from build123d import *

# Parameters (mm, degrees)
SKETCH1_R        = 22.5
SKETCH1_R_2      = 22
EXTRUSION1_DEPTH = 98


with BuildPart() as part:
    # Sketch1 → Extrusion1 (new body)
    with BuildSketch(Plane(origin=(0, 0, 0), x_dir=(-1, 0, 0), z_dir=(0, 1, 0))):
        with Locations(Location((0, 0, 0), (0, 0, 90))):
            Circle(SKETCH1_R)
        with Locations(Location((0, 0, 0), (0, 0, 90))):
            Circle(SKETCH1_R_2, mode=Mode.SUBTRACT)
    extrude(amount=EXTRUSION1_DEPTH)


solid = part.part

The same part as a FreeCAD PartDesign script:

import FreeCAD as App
import Part
import Sketcher

V = App.Vector
Q = App.Units.Quantity

doc = App.newDocument("Part")
body = doc.addObject("PartDesign::Body", "Body")

# Sketch on XZ plane
sketch1 = body.newObject("Sketcher::SketchObject", "Sketch")
sketch1.AttachmentSupport = (doc.getObject("XZ_Plane"), [""])
sketch1.MapMode = "FlatFace"
sketch1.addGeometry(Part.Circle(V(0, 0, 0), V(0, 0, 1), 22), False)
sketch1.addGeometry(Part.Circle(V(0, 0, 0), V(0, 0, 1), 22), False)
sketch1.addConstraint(Sketcher.Constraint("Coincident", 0, 3, -1, 1))
sketch1.addConstraint(Sketcher.Constraint("Coincident", 1, 3, -1, 1))
sketch1.addConstraint(Sketcher.Constraint("Diameter", 0, Q("45 mm")))
sketch1.addConstraint(Sketcher.Constraint("Diameter", 1, Q("44 mm")))
pad1 = body.newObject("PartDesign::Pad", "Pad")
pad1.Profile = sketch1
pad1.Length = 98
pad1.Reversed = True

doc.recompute()
